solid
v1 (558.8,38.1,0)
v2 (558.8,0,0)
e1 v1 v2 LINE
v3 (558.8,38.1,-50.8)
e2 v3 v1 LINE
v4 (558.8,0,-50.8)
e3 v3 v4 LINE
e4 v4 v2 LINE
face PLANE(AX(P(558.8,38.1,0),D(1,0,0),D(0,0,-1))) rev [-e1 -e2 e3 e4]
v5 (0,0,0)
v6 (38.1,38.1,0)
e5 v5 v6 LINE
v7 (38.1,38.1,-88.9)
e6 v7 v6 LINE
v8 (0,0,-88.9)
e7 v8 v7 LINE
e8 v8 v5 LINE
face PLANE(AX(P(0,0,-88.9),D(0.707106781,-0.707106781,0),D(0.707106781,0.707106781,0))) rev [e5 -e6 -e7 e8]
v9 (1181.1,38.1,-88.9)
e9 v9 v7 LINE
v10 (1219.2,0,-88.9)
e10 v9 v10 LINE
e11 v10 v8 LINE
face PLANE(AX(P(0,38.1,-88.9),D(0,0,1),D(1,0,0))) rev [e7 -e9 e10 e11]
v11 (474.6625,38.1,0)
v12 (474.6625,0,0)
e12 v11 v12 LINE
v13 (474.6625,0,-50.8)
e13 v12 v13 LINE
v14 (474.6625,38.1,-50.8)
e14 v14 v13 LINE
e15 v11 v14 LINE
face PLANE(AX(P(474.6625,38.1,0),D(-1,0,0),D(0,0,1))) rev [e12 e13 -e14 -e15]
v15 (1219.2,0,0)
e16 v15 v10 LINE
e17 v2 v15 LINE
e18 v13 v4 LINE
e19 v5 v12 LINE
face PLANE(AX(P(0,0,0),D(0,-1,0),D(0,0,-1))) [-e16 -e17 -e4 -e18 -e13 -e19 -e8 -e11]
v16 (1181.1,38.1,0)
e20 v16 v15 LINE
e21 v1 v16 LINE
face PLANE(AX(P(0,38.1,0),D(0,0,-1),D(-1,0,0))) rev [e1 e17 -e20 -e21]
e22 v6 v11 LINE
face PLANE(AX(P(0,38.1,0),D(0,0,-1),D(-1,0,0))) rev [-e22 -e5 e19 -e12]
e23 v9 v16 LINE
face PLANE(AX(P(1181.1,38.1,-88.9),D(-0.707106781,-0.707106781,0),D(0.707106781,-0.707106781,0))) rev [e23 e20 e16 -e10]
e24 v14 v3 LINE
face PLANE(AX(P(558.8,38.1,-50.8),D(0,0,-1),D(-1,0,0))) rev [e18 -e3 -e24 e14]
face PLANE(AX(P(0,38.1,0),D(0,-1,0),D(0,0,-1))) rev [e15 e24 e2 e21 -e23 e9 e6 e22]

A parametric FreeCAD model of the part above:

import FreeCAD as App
import Part
import Sketcher
Q = App.Units.Quantity

doc = App.newDocument("Part")
params = doc.addObject("Spreadsheet::Sheet", "Params")
for row, (alias, value) in enumerate([
    ("sketch1_width", "48 in"),
    ("sketch1_height", "3.5 in"),
    ("pad1_length", "1.5 in"),
    ("sketch2_width", "1.5 in"),
    ("sketch3_height", "2 in"),
    ("sketch3_width", "3.3125 in"),
], start=1):
    params.set(f"A{row}", alias)
    params.set(f"B{row}", "=" + value)
    params.setAlias(f"B{row}", alias)

body = doc.addObject("PartDesign::Body", "Body")

# Sketch on XZ plane
sketch1 = body.newObject("Sketcher::SketchObject", "Sketch")
sketch1.AttachmentSupport = (doc.getObject("XZ_Plane"), [""])
sketch1.MapMode = "FlatFace"
sketch1.addGeometry([
    Part.LineSegment(App.Vector(0, -88.9, 0), App.Vector(0, 0, 0)),
    Part.LineSegment(App.Vector(0, 0, 0), App.Vector(1219.2, 0, 0)),
    Part.LineSegment(App.Vector(1219.2, 0, 0), App.Vector(1219.2, -88.9, 0)),
    Part.LineSegment(App.Vector(1219.2, -88.9, 0), App.Vector(0, -88.9, 0)),
], False)
sketch1.addConstraint([
    Sketcher.Constraint("Coincident", 0, 2, 1, 1),
    Sketcher.Constraint("Coincident", 1, 2, 2, 1),
    Sketcher.Constraint("Coincident", 2, 2, 3, 1),
    Sketcher.Constraint("Coincident", 3, 2, 0, 1),
    Sketcher.Constraint("Vertical", 0),
    Sketcher.Constraint("Horizontal", 1),
    Sketcher.Constraint("Vertical", 2),
    Sketcher.Constraint("Horizontal", 3),
    Sketcher.Constraint("Coincident", 0, 2, -1, 1),
    Sketcher.Constraint("DistanceX", 1, 1, 1, 2, Q("48 in")),
    Sketcher.Constraint("DistanceY", 0, 1, 0, 2, Q("3.5 in")),
])
sketch1.setExpression("Constraints[9]", "Params.sketch1_width")
sketch1.setExpression("Constraints[10]", "Params.sketch1_height")
pad1 = body.newObject("PartDesign::Pad", "Pad")
pad1.Profile = sketch1
pad1.setExpression("Length", "Params.pad1_length")
pad1.Reversed = True

# Sketch on XY plane
sketch2 = body.newObject("Sketcher::SketchObject", "Sketch001")
sketch2.AttachmentSupport = (doc.getObject("XY_Plane"), [""])
sketch2.MapMode = "FlatFace"
sketch2.addGeometry([
    Part.LineSegment(App.Vector(0, 0, 0), App.Vector(38.1, 38.1, 0)),  # 0
    Part.LineSegment(App.Vector(38.1, 38.1, 0), App.Vector(0, 38.1, 0)),  # 1
    Part.LineSegment(App.Vector(0, 38.1, 0), App.Vector(0, 0, 0)),  # 2
    Part.LineSegment(App.Vector(1219.2, 0, 0), App.Vector(1219.2, 38.1, 0)),  # 3
    Part.LineSegment(App.Vector(1219.2, 38.1, 0), App.Vector(1181.1, 38.1, 0)),  # 4
    Part.LineSegment(App.Vector(1181.1, 38.1, 0), App.Vector(1219.2, 0, 0)),  # 5
], False)
sketch2.addConstraint([
    Sketcher.Constraint("Coincident", 0, 2, 1, 1),
    Sketcher.Constraint("Coincident", 1, 2, 2, 1),
    Sketcher.Constraint("Coincident", 2, 2, 0, 1),
    Sketcher.Constraint("Coincident", 3, 2, 4, 1),
    Sketcher.Constraint("Coincident", 4, 2, 5, 1),
    Sketcher.Constraint("Coincident", 5, 2, 3, 1),
    Sketcher.Constraint("Horizontal", 1),
    Sketcher.Constraint("Vertical", 2),
    Sketcher.Constraint("Vertical", 3),
    Sketcher.Constraint("Horizontal", 4),
    Sketcher.Constraint("Coincident", 2, 2, -1, 1),
    Sketcher.Constraint("PointOnObject", 5, 2, -1),
    Sketcher.Constraint("Perpendicular", 0, 5),
    Sketcher.Constraint("Horizontal", 1, 2, 3, 2),
    Sketcher.Constraint("Equal", 1, 4),
    Sketcher.Constraint("DistanceX", 1, 2, 1, 1, Q("1.5 in")),
    Sketcher.Constraint("DistanceX", -1, 1, 3, 2, Q("48 in")),
])
sketch2.setExpression("Constraints[15]", "Params.sketch2_width")
pocket1 = body.newObject("PartDesign::Pocket", "Pocket")
pocket1.Profile = sketch2
pocket1.Type = "ThroughAll"

# Sketch on XZ plane
sketch3 = body.newObject("Sketcher::SketchObject", "Sketch002")
sketch3.AttachmentSupport = (doc.getObject("XZ_Plane"), [""])
sketch3.MapMode = "FlatFace"
sketch3.addGeometry([
    Part.LineSegment(App.Vector(474.6625, 0, 0), App.Vector(474.6625, -50.8, 0)),
    Part.LineSegment(App.Vector(474.6625, -50.8, 0), App.Vector(558.8, -50.8, 0)),
    Part.LineSegment(App.Vector(558.8, -50.8, 0), App.Vector(558.8, 0, 0)),
    Part.LineSegment(App.Vector(558.8, 0, 0), App.Vector(474.6625, 0, 0)),
], False)
sketch3.addConstraint([
    Sketcher.Constraint("Coincident", 0, 2, 1, 1),
    Sketcher.Constraint("Coincident", 1, 2, 2, 1),
    Sketcher.Constraint("Coincident", 2, 2, 3, 1),
    Sketcher.Constraint("Coincident", 3, 2, 0, 1),
    Sketcher.Constraint("Vertical", 0),
    Sketcher.Constraint("Horizontal", 1),
    Sketcher.Constraint("Vertical", 2),
    Sketcher.Constraint("Horizontal", 3),
    Sketcher.Constraint("PointOnObject", 2, 2, -1),
    Sketcher.Constraint("DistanceY", 0, 2, 0, 1, Q("2 in")),
    Sketcher.Constraint("DistanceX", -1, 1, 1, 2, Q("22 in")),
    Sketcher.Constraint("DistanceX", 1, 1, 1, 2, Q("3.3125 in")),
])
sketch3.setExpression("Constraints[9]", "Params.sketch3_height")
sketch3.setExpression("Constraints[11]", "Params.sketch3_width")
pocket2 = body.newObject("PartDesign::Pocket", "Pocket001")
pocket2.Profile = sketch3
pocket2.Type = "ThroughAll"

doc.recompute()
